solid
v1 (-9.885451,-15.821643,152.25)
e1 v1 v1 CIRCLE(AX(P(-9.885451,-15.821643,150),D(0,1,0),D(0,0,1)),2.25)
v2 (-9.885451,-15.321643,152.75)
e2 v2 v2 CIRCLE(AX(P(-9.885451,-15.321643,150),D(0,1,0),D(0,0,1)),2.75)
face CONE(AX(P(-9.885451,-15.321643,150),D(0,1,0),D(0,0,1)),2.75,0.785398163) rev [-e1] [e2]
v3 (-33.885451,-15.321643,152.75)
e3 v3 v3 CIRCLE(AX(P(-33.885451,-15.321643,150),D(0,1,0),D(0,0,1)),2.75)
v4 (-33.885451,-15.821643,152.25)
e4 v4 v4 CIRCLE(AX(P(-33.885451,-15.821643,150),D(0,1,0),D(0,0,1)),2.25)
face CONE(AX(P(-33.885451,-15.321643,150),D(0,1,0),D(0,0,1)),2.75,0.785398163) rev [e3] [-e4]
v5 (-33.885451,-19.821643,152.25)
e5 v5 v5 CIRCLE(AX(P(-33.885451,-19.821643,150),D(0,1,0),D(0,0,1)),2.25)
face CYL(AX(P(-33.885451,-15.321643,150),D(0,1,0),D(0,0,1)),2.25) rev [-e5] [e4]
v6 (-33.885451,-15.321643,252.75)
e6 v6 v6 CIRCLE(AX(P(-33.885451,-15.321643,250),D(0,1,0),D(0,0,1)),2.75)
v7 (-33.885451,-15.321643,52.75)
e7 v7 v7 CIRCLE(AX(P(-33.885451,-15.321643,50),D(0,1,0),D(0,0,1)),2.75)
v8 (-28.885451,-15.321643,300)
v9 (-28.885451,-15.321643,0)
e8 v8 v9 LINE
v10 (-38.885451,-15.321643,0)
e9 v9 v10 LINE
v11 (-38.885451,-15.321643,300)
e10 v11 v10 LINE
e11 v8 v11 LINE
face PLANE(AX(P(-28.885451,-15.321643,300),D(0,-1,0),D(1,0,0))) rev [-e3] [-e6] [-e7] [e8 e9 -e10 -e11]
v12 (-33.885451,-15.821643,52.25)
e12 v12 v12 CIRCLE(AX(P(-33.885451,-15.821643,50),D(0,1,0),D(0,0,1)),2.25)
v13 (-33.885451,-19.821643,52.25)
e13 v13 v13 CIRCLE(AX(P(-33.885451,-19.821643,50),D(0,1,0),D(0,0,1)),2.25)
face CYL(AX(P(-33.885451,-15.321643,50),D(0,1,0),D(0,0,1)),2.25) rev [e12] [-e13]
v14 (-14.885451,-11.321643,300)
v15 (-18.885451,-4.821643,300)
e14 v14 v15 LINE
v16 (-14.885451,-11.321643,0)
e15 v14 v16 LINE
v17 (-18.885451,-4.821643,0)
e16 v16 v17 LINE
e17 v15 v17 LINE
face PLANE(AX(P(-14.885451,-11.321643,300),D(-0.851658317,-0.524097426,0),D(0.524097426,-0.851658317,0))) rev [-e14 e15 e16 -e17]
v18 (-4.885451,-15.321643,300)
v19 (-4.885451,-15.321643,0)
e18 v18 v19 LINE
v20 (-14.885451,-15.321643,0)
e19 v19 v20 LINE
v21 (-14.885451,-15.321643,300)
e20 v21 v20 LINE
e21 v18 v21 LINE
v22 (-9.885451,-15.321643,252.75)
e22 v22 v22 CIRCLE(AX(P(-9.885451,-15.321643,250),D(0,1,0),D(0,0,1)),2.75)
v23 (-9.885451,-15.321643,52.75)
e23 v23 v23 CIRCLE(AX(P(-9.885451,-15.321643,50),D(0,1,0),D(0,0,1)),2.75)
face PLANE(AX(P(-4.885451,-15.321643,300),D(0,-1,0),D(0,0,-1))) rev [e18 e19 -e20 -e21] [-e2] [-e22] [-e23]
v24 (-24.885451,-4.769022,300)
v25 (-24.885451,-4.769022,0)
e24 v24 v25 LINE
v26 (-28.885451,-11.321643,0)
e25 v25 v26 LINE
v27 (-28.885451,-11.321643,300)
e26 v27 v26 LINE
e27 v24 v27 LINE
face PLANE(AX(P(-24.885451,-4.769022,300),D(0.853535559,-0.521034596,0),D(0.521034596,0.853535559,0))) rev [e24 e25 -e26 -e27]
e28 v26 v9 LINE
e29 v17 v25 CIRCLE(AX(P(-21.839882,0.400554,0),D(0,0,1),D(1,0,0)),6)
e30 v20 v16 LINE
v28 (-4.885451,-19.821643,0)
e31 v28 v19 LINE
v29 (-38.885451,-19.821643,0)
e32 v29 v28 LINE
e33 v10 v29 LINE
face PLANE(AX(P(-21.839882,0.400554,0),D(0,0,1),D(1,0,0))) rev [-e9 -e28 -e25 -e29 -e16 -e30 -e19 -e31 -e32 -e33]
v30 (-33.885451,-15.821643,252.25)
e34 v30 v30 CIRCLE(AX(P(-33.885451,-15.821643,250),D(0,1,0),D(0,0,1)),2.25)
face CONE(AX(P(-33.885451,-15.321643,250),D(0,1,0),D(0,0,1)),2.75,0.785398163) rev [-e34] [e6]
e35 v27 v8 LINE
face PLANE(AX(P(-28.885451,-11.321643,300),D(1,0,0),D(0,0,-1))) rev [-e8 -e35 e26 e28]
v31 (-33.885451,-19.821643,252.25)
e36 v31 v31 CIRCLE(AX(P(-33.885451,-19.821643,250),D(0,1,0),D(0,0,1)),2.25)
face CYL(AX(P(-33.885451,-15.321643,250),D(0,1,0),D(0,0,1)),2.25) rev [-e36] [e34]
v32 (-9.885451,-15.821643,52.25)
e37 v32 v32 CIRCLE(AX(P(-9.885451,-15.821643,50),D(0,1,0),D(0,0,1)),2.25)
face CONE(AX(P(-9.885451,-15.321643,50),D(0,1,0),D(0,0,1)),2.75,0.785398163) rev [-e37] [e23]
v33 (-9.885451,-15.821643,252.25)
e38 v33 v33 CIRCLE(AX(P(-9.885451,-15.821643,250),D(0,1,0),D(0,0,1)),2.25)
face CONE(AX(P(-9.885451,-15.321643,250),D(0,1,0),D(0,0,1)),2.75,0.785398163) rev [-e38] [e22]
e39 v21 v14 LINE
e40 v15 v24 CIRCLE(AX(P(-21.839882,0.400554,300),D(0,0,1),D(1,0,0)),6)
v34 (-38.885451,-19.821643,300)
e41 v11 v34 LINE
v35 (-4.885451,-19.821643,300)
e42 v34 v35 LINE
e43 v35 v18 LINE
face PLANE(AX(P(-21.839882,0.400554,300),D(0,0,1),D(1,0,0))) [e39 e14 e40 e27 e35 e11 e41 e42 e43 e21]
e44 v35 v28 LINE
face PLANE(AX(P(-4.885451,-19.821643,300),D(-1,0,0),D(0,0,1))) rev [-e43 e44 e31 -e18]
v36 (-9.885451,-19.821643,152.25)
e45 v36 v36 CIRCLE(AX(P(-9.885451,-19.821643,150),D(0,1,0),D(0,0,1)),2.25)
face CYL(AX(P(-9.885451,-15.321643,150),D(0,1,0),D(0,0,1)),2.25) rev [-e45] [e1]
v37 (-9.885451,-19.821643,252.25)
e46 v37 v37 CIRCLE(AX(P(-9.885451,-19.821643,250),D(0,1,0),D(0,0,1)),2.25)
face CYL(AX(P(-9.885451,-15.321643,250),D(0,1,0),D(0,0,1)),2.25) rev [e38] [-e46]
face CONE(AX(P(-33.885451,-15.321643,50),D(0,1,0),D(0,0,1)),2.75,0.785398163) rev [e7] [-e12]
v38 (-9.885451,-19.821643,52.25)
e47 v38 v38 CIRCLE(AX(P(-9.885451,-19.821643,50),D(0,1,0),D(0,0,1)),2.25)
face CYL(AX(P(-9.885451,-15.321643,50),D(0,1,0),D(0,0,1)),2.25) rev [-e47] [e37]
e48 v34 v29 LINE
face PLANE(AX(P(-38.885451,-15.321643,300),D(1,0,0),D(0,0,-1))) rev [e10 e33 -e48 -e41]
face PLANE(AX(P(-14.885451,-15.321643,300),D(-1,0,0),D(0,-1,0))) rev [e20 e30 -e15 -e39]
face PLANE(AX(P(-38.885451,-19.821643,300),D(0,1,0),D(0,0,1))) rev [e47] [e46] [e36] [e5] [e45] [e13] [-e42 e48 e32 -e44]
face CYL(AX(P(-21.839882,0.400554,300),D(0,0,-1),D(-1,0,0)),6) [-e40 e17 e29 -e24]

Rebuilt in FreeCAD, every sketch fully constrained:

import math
import FreeCAD as App
import Part
import Sketcher

V = App.Vector

doc = App.newDocument("Part")
body = doc.addObject("PartDesign::Body", "Body")

# Sketch on XY plane
sketch1 = body.newObject("Sketcher::SketchObject", "Sketch")
sketch1.AttachmentSupport = (doc.getObject("XY_Plane"), [""])
sketch1.MapMode = "FlatFace"
sketch1.addGeometry([
    Part.LineSegment(V(-38.885451, -19.821643, 0), V(-4.885451, -19.821643, 0)),  # 0
    Part.LineSegment(V(-4.885451, -19.821643, 0), V(-4.885451, -15.321643, 0)),  # 1
    Part.LineSegment(V(-4.885451, -15.321643, 0), V(-14.885451, -15.321643, 0)),  # 2
    Part.LineSegment(V(-14.885451, -15.321643, 0), V(-14.885451, -11.321643, 0)),  # 3
    Part.LineSegment(V(-14.885451, -11.321643, 0), V(-18.885451, -4.821643, 0)),  # 4
    Part.ArcOfCircle(Part.Circle(V(-21.839882, 0.400554, 0), V(0, 0, 1), 6), math.radians(-60.501208), math.radians(239.496247)),  # 5
    Part.LineSegment(V(-24.885451, -4.769022, 0), V(-28.885451, -11.321643, 0)),  # 6
    Part.LineSegment(V(-28.885451, -11.321643, 0), V(-28.885451, -15.321643, 0)),  # 7
    Part.LineSegment(V(-28.885451, -15.321643, 0), V(-38.885451, -15.321643, 0)),  # 8
    Part.LineSegment(V(-38.885451, -15.321643, 0), V(-38.885451, -19.821643, 0)),  # 9
], False)
sketch1.addConstraint([
    Sketcher.Constraint("Coincident", 0, 2, 1, 1),
    Sketcher.Constraint("Coincident", 1, 2, 2, 1),
    Sketcher.Constraint("Coincident", 2, 2, 3, 1),
    Sketcher.Constraint("Coincident", 3, 2, 4, 1),
    Sketcher.Constraint("Coincident", 4, 2, 5, 1),
    Sketcher.Constraint("Coincident", 5, 2, 6, 1),
    Sketcher.Constraint("Coincident", 6, 2, 7, 1),
    Sketcher.Constraint("Coincident", 7, 2, 8, 1),
    Sketcher.Constraint("Coincident", 8, 2, 9, 1),
    Sketcher.Constraint("Coincident", 9, 2, 0, 1),
    Sketcher.Constraint("Horizontal", 0),
    Sketcher.Constraint("Vertical", 1),
    Sketcher.Constraint("Horizontal", 2),
    Sketcher.Constraint("Vertical", 3),
    Sketcher.Constraint("Vertical", 7),
    Sketcher.Constraint("Horizontal", 8),
    Sketcher.Constraint("Vertical", 9),
    Sketcher.Constraint("Horizontal", 3, 2, 6, 2),
    Sketcher.Constraint("Horizontal", 2, 2, 7, 2),
    Sketcher.Constraint("Equal", 2, 8),
    Sketcher.Constraint("Radius", 5, 6.0),
    Sketcher.Constraint("DistanceX", 0, 1, 0, 2, 34.0),
    Sketcher.Constraint("DistanceX", 2, 2, 2, 1, 10.0),
    Sketcher.Constraint("DistanceY", 3, 1, 3, 2, 4.0),
    Sketcher.Constraint("DistanceY", 1, 1, 1, 2, 4.5),
    Sketcher.Constraint("DistanceX", 4, 2, 3, 2, 4.0),
    Sketcher.Constraint("DistanceY", 0, 2, 4, 2, 15.0),
    Sketcher.Constraint("DistanceX", 5, 2, 4, 2, 6.0),
    Sketcher.Constraint("DistanceX", 0, 2, -1, 1, 4.885451),
    Sketcher.Constraint("DistanceY", 5, 2, -1, 1, 4.769022),
    Sketcher.Constraint("DistanceX", 5, 3, 0, 2, 16.954431),
])
pad1 = body.newObject("PartDesign::Pad", "Pad")
pad1.Profile = sketch1
pad1.Length = 300

# Sketch on XZ plane
sketch2 = body.newObject("Sketcher::SketchObject", "Sketch001")
sketch2.AttachmentSupport = (doc.getObject("XZ_Plane"), [""])
sketch2.MapMode = "FlatFace"
sketch2.AttachmentOffset = App.Placement(V(0, 0, 15.321643), App.Rotation())
sketch2.addGeometry([
    Part.Circle(V(-33.885451, 50, 0), V(0, 0, 1), 2.25),  # 0
    Part.Circle(V(-33.885451, 150, 0), V(0, 0, 1), 2.25),  # 1
    Part.Circle(V(-33.885451, 250, 0), V(0, 0, 1), 2.25),  # 2
    Part.Circle(V(-9.885451, 250, 0), V(0, 0, 1), 2.25),  # 3
    Part.Circle(V(-9.885451, 150, 0), V(0, 0, 1), 2.25),  # 4
    Part.Circle(V(-9.885451, 50, 0), V(0, 0, 1), 2.25),  # 5
], False)
sketch2.addConstraint([
    Sketcher.Constraint("Equal", 0, 1),
    Sketcher.Constraint("Equal", 1, 2),
    Sketcher.Constraint("Equal", 2, 3),
    Sketcher.Constraint("Equal", 3, 4),
    Sketcher.Constraint("Equal", 4, 5),
    Sketcher.Constraint("Horizontal", 2, 3, 3, 3),
    Sketcher.Constraint("Horizontal", 1, 3, 4, 3),
    Sketcher.Constraint("Horizontal", 0, 3, 5, 3),
    Sketcher.Constraint("Vertical", 0, 3, 1, 3),
    Sketcher.Constraint("Vertical", 1, 3, 2, 3),
    Sketcher.Constraint("Vertical", 3, 3, 4, 3),
    Sketcher.Constraint("Vertical", 4, 3, 5, 3),
    Sketcher.Constraint("Diameter", 0, 4.5),
    Sketcher.Constraint("DistanceY", -1, 1, 0, 3, 50.0),
    Sketcher.Constraint("DistanceY", -1, 1, 1, 3, 150.0),
    Sketcher.Constraint("DistanceY", -1, 1, 2, 3, 250.0),
    Sketcher.Constraint("DistanceX", 2, 3, 3, 3, 24.0),
    Sketcher.Constraint("DistanceX", 0, 3, -1, 1, 33.885451),
])
doc.recompute()
hole = body.newObject("PartDesign::Hole", "Hole")
hole.Profile = sketch2
hole.ThreadType = "None"
hole.Diameter = 4.5
hole.DepthType = "ThroughAll"
hole.HoleCutType = "Countersink"
hole.HoleCutDiameter = 5.5
hole.HoleCutCountersinkAngle = 90
hole.Reversed = True

doc.recompute()
